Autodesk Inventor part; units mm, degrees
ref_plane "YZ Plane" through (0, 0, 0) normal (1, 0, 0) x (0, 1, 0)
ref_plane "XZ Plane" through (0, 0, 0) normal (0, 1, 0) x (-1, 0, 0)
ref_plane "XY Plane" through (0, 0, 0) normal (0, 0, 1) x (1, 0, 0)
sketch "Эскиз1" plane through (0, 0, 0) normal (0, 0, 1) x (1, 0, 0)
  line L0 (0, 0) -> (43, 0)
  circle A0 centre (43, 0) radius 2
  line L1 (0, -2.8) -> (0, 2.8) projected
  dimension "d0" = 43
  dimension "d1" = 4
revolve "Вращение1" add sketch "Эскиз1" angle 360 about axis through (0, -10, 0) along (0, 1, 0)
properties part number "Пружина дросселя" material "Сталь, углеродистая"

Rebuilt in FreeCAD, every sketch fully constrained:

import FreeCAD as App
import Part
import Sketcher
Q = App.Units.Quantity

doc = App.newDocument("Part")
body = doc.addObject("PartDesign::Body", "Body")

# Sketch on XY plane
sketch1 = body.newObject("Sketcher::SketchObject", "Sketch")
sketch1.AttachmentSupport = (doc.getObject("XY_Plane"), [""])
sketch1.MapMode = "FlatFace"
sketch1.addGeometry(Part.Circle(App.Vector(43, 0, 0), App.Vector(0, 0, 1), 2), False)
sketch1.addConstraint([
    Sketcher.Constraint("PointOnObject", 0, 3, -1),
    Sketcher.Constraint("Diameter", 0, Q("4 mm")),
    Sketcher.Constraint("DistanceX", -1, 1, 0, 3, Q("43 mm")),
])
revolution = body.newObject("PartDesign::Revolution", "Revolution")
revolution.Profile = sketch1
revolution.ReferenceAxis = (sketch1, ["V_Axis"])
revolution.Angle = 360

doc.recompute()
